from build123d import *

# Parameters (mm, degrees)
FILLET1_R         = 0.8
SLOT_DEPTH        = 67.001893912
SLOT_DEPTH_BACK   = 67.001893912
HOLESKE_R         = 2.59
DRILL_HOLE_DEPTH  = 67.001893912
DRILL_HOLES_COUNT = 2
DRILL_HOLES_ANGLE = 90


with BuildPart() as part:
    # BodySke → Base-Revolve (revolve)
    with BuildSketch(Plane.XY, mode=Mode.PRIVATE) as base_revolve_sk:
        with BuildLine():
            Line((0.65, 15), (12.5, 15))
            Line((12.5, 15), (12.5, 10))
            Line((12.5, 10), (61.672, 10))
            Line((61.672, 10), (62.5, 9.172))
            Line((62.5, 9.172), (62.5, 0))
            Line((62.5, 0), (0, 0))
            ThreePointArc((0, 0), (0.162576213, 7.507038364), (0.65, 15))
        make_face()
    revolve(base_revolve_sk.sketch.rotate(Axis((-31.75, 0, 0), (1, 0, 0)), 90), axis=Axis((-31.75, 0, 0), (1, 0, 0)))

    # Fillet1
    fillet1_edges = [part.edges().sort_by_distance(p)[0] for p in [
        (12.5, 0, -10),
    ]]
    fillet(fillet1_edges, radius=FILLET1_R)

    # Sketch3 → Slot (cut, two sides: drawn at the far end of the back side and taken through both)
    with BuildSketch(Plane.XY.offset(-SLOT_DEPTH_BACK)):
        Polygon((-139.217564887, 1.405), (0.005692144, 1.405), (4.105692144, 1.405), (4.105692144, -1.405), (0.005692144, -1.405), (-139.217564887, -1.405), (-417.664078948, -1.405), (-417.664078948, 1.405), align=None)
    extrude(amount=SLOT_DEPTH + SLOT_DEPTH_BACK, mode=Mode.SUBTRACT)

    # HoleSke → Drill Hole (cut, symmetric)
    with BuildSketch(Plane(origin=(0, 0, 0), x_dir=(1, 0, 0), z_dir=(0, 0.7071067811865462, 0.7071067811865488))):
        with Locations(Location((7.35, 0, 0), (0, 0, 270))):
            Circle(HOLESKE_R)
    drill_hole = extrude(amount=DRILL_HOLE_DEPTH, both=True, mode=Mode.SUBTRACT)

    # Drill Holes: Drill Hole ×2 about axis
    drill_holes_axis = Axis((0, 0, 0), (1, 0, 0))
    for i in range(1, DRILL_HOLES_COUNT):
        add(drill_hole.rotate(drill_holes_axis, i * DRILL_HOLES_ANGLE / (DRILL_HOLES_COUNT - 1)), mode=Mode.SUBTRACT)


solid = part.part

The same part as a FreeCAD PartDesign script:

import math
import FreeCAD as App
import Part
import Sketcher
from FreeCAD import Vector
Q = App.Units.Quantity


def edges_at(feature, points):
    """Names of the edges that pass closest to the given points."""
    edges = feature.Shape.Edges
    near = lambda p: min(range(len(edges)), key=lambda i: edges[i].distToShape(Part.Vertex(*p))[0])
    return sorted({f"Edge{near(p) + 1}" for p in points})

doc = App.newDocument("Part")
body = doc.addObject("PartDesign::Body", "Body")

# Sketch on XY plane
sketch1 = body.newObject("Sketcher::SketchObject", "Sketch")
sketch1.AttachmentSupport = (doc.getObject("XY_Plane"), [""])
sketch1.MapMode = "FlatFace"
sketch1.addGeometry(Part.LineSegment(Vector(12.5, 15, 0), Vector(0.7, 15, 0)), False)
sketch1.addGeometry(Part.ArcOfCircle(Part.Circle(Vector(173.4, 0, 0), Vector(0, 0, 1), 173.4), math.radians(175.04), math.radians(180)), False)
sketch1.addGeometry(Part.LineSegment(Vector(0, 0, 0), Vector(62.5, 0, 0)), False)
sketch1.addGeometry(Part.LineSegment(Vector(62.5, 0, 0), Vector(62.5, 9.2, 0)), False)
sketch1.addGeometry(Part.LineSegment(Vector(62.5, 9.2, 0), Vector(61.7, 10, 0)), False)
sketch1.addGeometry(Part.LineSegment(Vector(61.7, 10, 0), Vector(12.5, 10, 0)), False)
sketch1.addGeometry(Part.LineSegment(Vector(12.5, 10, 0), Vector(12.5, 15, 0)), False)
sketch1.addConstraint(Sketcher.Constraint("Coincident", 0, 2, 1, 1))
sketch1.addConstraint(Sketcher.Constraint("Coincident", 1, 2, 2, 1))
sketch1.addConstraint(Sketcher.Constraint("Coincident", 2, 2, 3, 1))
sketch1.addConstraint(Sketcher.Constraint("Coincident", 3, 2, 4, 1))
sketch1.addConstraint(Sketcher.Constraint("Coincident", 4, 2, 5, 1))
sketch1.addConstraint(Sketcher.Constraint("Coincident", 5, 2, 6, 1))
sketch1.addConstraint(Sketcher.Constraint("Coincident", 6, 2, 0, 1))
sketch1.addConstraint(Sketcher.Constraint("Horizontal", 0))
sketch1.addConstraint(Sketcher.Constraint("Horizontal", 2))
sketch1.addConstraint(Sketcher.Constraint("Vertical", 3))
sketch1.addConstraint(Sketcher.Constraint("Horizontal", 5))
sketch1.addConstraint(Sketcher.Constraint("Vertical", 6))
sketch1.addConstraint(Sketcher.Constraint("Coincident", 1, 2, -1, 1))
sketch1.addConstraint(Sketcher.Constraint("PointOnObject", 1, 3, -1))
sketch1.addConstraint(Sketcher.Constraint("DistanceY", 6, 1, 6, 2, Q("5 mm")))
sketch1.addConstraint(Sketcher.Constraint("Angle", 4, Q("135 deg")))
sketch1.addConstraint(Sketcher.Constraint("DistanceX", 2, 1, 2, 2, Q("62.5 mm")))
sketch1.addConstraint(Sketcher.Constraint("DistanceY", -1, 1, 0, 2, Q("15 mm")))
sketch1.addConstraint(Sketcher.Constraint("DistanceX", 5, 2, 3, 2, Q("50 mm")))
sketch1.addConstraint(Sketcher.Constraint("DistanceX", 5, 2, 5, 1, Q("49.172 mm")))
sketch1.addConstraint(Sketcher.Constraint("DistanceX", -1, 1, 0, 2, Q("0.65 mm")))
revolution = body.newObject("PartDesign::Revolution", "Revolution")
revolution.Profile = sketch1
revolution.ReferenceAxis = (sketch1, ["H_Axis"])
revolution.Angle = 360
doc.recompute()

fillet = body.newObject("PartDesign::Fillet", "Fillet")
fillet.Base = (revolution, edges_at(revolution, [(12.5, 0, -10)]))
fillet.Radius = 0.8

# Sketch on XY plane
sketch2 = body.newObject("Sketcher::SketchObject", "Sketch001")
sketch2.AttachmentSupport = (doc.getObject("XY_Plane"), [""])
sketch2.MapMode = "FlatFace"
sketch2.addGeometry(Part.LineSegment(Vector(4.1, 1.4, 0), Vector(-417.7, 1.4, 0)), False)
sketch2.addGeometry(Part.LineSegment(Vector(-417.7, 1.4, 0), Vector(-417.7, -1.4, 0)), False)
sketch2.addGeometry(Part.LineSegment(Vector(-417.7, -1.4, 0), Vector(4.1, -1.4, 0)), False)
sketch2.addGeometry(Part.LineSegment(Vector(4.1, -1.4, 0), Vector(4.1, 1.4, 0)), False)
sketch2.addConstraint(Sketcher.Constraint("Coincident", 0, 2, 1, 1))
sketch2.addConstraint(Sketcher.Constraint("Coincident", 1, 2, 2, 1))
sketch2.addConstraint(Sketcher.Constraint("Coincident", 2, 2, 3, 1))
sketch2.addConstraint(Sketcher.Constraint("Coincident", 3, 2, 0, 1))
sketch2.addConstraint(Sketcher.Constraint("Horizontal", 0))
sketch2.addConstraint(Sketcher.Constraint("Vertical", 1))
sketch2.addConstraint(Sketcher.Constraint("Horizontal", 2))
sketch2.addConstraint(Sketcher.Constraint("Vertical", 3))
sketch2.addConstraint(Sketcher.Constraint("DistanceY", 1, 2, 1, 1, Q("2.81 mm")))
sketch2.addConstraint(Sketcher.Constraint("DistanceY", -1, 1, 0, 2, Q("1.405 mm")))
sketch2.addConstraint(Sketcher.Constraint("DistanceX", 0, 2, 0, 1, Q("421.769771 mm")))
sketch2.addConstraint(Sketcher.Constraint("DistanceX", 0, 2, -1, 1, Q("417.664079 mm")))
pocket1 = body.newObject("PartDesign::Pocket", "Pocket")
pocket1.Profile = sketch2
pocket1.Type = "ThroughAll"
pocket1.Midplane = True

# Sketch on an angled plane
sketch3 = body.newObject("Sketcher::SketchObject", "Sketch002")
sketch3.Placement = App.Placement(Vector(0, 0, 0), App.Rotation(Vector(1, 0, 0), Vector(0, 0.707106781, -0.707106781), Vector(0, 0.707106781, 0.707106781), "ZXY"))
sketch3.addGeometry(Part.Circle(Vector(7.3, 0, 0), Vector(0, 0, 1), 2.6), False)
sketch3.addConstraint(Sketcher.Constraint("PointOnObject", 0, 3, -1))
sketch3.addConstraint(Sketcher.Constraint("Diameter", 0, Q("5.18 mm")))
sketch3.addConstraint(Sketcher.Constraint("DistanceX", -1, 1, 0, 3, Q("7.35 mm")))
pocket2 = body.newObject("PartDesign::Pocket", "Pocket001")
pocket2.Profile = sketch3
pocket2.Length = 134.003788
pocket2.Midplane = True
doc.recompute()

polarpattern = body.newObject("PartDesign::PolarPattern", "PolarPattern")
polarpattern.Originals = [pocket2]
polarpattern.Axis = (doc.getObject("X_Axis"), [""])
polarpattern.Angle = 90
polarpattern.Occurrences = 2
body.Tip = polarpattern

doc.recompute()
